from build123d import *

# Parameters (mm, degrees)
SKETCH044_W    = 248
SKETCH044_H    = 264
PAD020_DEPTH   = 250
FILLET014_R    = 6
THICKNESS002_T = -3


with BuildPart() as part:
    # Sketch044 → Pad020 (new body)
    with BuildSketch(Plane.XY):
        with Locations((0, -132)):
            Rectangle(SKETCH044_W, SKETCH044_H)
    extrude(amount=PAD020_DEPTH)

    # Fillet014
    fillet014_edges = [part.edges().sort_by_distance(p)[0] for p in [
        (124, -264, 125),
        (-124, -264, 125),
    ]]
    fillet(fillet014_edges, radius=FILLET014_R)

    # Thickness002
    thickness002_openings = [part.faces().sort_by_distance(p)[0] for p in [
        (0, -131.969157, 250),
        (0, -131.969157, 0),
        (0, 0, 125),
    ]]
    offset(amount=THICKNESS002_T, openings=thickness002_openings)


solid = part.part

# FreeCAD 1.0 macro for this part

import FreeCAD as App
import Part
import Sketcher
from FreeCAD import Vector


def edges_at(feature, points):
    """Names of the edges that pass closest to the given points."""
    edges = feature.Shape.Edges
    near = lambda p: min(range(len(edges)), key=lambda i: edges[i].distToShape(Part.Vertex(*p))[0])
    return sorted({f"Edge{near(p) + 1}" for p in points})


def faces_at(feature, points):
    """Names of the faces that lie closest to the given points."""
    faces = feature.Shape.Faces
    near = lambda p: min(range(len(faces)), key=lambda i: faces[i].distToShape(Part.Vertex(*p))[0])
    return sorted({f"Face{near(p) + 1}" for p in points})

doc = App.newDocument("Part")
params = doc.addObject("Spreadsheet::Sheet", "Params")
for row, (alias, value) in enumerate([
    ("sketch1_width", "248 mm"),
    ("sketch1_height", "264 mm"),
    ("pad1_length", "250 mm"),
    ("fillet_radius", "6 mm"),
    ("thickness_wall", "3 mm"),
], start=1):
    params.set(f"A{row}", alias)
    params.set(f"B{row}", "=" + value)
    params.setAlias(f"B{row}", alias)

body = doc.addObject("PartDesign::Body", "Body")

# Sketch on XY plane
sketch1 = body.newObject("Sketcher::SketchObject", "Sketch")
sketch1.AttachmentSupport = (doc.getObject("XY_Plane"), [""])
sketch1.MapMode = "FlatFace"
sketch1.addGeometry(Part.LineSegment(Vector(-124, 0, 0), Vector(-124, -264, 0)), False)
sketch1.addGeometry(Part.LineSegment(Vector(-124, -264, 0), Vector(124, -264, 0)), False)
sketch1.addGeometry(Part.LineSegment(Vector(124, -264, 0), Vector(124, 0, 0)), False)
sketch1.addGeometry(Part.LineSegment(Vector(124, 0, 0), Vector(-124, 0, 0)), False)
sketch1.addConstraint(Sketcher.Constraint("Coincident", 0, 2, 1, 1))
sketch1.addConstraint(Sketcher.Constraint("Coincident", 1, 2, 2, 1))
sketch1.addConstraint(Sketcher.Constraint("Coincident", 2, 2, 3, 1))
sketch1.addConstraint(Sketcher.Constraint("Coincident", 3, 2, 0, 1))
sketch1.addConstraint(Sketcher.Constraint("Vertical", 0))
sketch1.addConstraint(Sketcher.Constraint("Horizontal", 1))
sketch1.addConstraint(Sketcher.Constraint("Vertical", 2))
sketch1.addConstraint(Sketcher.Constraint("Horizontal", 3))
sketch1.addConstraint(Sketcher.Constraint("Symmetric", 2, 2, 3, 2, -1, 1))
sketch1.addConstraint(Sketcher.Constraint("DistanceX", 1, 1, 1, 2, 248.0))
sketch1.addConstraint(Sketcher.Constraint("DistanceY", 0, 2, 0, 1, 264.0))
sketch1.setExpression("Constraints[9]", "Params.sketch1_width")
sketch1.setExpression("Constraints[10]", "Params.sketch1_height")
pad1 = body.newObject("PartDesign::Pad", "Pad")
pad1.Profile = sketch1
pad1.setExpression("Length", "Params.pad1_length")
doc.recompute()

fillet = body.newObject("PartDesign::Fillet", "Fillet")
fillet.Base = (pad1, edges_at(pad1, [(124, -264, 125), (-124, -264, 125)]))
fillet.setExpression("Radius", "Params.fillet_radius")
doc.recompute()

thickness = body.newObject("PartDesign::Thickness", "Thickness")
thickness.Base = (fillet, faces_at(fillet, [(0, -132, 250), (0, -132, 0), (0, 0, 125)]))
thickness.setExpression("Value", "Params.thickness_wall")
thickness.Reversed = True
thickness.Join = "Arc"

doc.recompute()
